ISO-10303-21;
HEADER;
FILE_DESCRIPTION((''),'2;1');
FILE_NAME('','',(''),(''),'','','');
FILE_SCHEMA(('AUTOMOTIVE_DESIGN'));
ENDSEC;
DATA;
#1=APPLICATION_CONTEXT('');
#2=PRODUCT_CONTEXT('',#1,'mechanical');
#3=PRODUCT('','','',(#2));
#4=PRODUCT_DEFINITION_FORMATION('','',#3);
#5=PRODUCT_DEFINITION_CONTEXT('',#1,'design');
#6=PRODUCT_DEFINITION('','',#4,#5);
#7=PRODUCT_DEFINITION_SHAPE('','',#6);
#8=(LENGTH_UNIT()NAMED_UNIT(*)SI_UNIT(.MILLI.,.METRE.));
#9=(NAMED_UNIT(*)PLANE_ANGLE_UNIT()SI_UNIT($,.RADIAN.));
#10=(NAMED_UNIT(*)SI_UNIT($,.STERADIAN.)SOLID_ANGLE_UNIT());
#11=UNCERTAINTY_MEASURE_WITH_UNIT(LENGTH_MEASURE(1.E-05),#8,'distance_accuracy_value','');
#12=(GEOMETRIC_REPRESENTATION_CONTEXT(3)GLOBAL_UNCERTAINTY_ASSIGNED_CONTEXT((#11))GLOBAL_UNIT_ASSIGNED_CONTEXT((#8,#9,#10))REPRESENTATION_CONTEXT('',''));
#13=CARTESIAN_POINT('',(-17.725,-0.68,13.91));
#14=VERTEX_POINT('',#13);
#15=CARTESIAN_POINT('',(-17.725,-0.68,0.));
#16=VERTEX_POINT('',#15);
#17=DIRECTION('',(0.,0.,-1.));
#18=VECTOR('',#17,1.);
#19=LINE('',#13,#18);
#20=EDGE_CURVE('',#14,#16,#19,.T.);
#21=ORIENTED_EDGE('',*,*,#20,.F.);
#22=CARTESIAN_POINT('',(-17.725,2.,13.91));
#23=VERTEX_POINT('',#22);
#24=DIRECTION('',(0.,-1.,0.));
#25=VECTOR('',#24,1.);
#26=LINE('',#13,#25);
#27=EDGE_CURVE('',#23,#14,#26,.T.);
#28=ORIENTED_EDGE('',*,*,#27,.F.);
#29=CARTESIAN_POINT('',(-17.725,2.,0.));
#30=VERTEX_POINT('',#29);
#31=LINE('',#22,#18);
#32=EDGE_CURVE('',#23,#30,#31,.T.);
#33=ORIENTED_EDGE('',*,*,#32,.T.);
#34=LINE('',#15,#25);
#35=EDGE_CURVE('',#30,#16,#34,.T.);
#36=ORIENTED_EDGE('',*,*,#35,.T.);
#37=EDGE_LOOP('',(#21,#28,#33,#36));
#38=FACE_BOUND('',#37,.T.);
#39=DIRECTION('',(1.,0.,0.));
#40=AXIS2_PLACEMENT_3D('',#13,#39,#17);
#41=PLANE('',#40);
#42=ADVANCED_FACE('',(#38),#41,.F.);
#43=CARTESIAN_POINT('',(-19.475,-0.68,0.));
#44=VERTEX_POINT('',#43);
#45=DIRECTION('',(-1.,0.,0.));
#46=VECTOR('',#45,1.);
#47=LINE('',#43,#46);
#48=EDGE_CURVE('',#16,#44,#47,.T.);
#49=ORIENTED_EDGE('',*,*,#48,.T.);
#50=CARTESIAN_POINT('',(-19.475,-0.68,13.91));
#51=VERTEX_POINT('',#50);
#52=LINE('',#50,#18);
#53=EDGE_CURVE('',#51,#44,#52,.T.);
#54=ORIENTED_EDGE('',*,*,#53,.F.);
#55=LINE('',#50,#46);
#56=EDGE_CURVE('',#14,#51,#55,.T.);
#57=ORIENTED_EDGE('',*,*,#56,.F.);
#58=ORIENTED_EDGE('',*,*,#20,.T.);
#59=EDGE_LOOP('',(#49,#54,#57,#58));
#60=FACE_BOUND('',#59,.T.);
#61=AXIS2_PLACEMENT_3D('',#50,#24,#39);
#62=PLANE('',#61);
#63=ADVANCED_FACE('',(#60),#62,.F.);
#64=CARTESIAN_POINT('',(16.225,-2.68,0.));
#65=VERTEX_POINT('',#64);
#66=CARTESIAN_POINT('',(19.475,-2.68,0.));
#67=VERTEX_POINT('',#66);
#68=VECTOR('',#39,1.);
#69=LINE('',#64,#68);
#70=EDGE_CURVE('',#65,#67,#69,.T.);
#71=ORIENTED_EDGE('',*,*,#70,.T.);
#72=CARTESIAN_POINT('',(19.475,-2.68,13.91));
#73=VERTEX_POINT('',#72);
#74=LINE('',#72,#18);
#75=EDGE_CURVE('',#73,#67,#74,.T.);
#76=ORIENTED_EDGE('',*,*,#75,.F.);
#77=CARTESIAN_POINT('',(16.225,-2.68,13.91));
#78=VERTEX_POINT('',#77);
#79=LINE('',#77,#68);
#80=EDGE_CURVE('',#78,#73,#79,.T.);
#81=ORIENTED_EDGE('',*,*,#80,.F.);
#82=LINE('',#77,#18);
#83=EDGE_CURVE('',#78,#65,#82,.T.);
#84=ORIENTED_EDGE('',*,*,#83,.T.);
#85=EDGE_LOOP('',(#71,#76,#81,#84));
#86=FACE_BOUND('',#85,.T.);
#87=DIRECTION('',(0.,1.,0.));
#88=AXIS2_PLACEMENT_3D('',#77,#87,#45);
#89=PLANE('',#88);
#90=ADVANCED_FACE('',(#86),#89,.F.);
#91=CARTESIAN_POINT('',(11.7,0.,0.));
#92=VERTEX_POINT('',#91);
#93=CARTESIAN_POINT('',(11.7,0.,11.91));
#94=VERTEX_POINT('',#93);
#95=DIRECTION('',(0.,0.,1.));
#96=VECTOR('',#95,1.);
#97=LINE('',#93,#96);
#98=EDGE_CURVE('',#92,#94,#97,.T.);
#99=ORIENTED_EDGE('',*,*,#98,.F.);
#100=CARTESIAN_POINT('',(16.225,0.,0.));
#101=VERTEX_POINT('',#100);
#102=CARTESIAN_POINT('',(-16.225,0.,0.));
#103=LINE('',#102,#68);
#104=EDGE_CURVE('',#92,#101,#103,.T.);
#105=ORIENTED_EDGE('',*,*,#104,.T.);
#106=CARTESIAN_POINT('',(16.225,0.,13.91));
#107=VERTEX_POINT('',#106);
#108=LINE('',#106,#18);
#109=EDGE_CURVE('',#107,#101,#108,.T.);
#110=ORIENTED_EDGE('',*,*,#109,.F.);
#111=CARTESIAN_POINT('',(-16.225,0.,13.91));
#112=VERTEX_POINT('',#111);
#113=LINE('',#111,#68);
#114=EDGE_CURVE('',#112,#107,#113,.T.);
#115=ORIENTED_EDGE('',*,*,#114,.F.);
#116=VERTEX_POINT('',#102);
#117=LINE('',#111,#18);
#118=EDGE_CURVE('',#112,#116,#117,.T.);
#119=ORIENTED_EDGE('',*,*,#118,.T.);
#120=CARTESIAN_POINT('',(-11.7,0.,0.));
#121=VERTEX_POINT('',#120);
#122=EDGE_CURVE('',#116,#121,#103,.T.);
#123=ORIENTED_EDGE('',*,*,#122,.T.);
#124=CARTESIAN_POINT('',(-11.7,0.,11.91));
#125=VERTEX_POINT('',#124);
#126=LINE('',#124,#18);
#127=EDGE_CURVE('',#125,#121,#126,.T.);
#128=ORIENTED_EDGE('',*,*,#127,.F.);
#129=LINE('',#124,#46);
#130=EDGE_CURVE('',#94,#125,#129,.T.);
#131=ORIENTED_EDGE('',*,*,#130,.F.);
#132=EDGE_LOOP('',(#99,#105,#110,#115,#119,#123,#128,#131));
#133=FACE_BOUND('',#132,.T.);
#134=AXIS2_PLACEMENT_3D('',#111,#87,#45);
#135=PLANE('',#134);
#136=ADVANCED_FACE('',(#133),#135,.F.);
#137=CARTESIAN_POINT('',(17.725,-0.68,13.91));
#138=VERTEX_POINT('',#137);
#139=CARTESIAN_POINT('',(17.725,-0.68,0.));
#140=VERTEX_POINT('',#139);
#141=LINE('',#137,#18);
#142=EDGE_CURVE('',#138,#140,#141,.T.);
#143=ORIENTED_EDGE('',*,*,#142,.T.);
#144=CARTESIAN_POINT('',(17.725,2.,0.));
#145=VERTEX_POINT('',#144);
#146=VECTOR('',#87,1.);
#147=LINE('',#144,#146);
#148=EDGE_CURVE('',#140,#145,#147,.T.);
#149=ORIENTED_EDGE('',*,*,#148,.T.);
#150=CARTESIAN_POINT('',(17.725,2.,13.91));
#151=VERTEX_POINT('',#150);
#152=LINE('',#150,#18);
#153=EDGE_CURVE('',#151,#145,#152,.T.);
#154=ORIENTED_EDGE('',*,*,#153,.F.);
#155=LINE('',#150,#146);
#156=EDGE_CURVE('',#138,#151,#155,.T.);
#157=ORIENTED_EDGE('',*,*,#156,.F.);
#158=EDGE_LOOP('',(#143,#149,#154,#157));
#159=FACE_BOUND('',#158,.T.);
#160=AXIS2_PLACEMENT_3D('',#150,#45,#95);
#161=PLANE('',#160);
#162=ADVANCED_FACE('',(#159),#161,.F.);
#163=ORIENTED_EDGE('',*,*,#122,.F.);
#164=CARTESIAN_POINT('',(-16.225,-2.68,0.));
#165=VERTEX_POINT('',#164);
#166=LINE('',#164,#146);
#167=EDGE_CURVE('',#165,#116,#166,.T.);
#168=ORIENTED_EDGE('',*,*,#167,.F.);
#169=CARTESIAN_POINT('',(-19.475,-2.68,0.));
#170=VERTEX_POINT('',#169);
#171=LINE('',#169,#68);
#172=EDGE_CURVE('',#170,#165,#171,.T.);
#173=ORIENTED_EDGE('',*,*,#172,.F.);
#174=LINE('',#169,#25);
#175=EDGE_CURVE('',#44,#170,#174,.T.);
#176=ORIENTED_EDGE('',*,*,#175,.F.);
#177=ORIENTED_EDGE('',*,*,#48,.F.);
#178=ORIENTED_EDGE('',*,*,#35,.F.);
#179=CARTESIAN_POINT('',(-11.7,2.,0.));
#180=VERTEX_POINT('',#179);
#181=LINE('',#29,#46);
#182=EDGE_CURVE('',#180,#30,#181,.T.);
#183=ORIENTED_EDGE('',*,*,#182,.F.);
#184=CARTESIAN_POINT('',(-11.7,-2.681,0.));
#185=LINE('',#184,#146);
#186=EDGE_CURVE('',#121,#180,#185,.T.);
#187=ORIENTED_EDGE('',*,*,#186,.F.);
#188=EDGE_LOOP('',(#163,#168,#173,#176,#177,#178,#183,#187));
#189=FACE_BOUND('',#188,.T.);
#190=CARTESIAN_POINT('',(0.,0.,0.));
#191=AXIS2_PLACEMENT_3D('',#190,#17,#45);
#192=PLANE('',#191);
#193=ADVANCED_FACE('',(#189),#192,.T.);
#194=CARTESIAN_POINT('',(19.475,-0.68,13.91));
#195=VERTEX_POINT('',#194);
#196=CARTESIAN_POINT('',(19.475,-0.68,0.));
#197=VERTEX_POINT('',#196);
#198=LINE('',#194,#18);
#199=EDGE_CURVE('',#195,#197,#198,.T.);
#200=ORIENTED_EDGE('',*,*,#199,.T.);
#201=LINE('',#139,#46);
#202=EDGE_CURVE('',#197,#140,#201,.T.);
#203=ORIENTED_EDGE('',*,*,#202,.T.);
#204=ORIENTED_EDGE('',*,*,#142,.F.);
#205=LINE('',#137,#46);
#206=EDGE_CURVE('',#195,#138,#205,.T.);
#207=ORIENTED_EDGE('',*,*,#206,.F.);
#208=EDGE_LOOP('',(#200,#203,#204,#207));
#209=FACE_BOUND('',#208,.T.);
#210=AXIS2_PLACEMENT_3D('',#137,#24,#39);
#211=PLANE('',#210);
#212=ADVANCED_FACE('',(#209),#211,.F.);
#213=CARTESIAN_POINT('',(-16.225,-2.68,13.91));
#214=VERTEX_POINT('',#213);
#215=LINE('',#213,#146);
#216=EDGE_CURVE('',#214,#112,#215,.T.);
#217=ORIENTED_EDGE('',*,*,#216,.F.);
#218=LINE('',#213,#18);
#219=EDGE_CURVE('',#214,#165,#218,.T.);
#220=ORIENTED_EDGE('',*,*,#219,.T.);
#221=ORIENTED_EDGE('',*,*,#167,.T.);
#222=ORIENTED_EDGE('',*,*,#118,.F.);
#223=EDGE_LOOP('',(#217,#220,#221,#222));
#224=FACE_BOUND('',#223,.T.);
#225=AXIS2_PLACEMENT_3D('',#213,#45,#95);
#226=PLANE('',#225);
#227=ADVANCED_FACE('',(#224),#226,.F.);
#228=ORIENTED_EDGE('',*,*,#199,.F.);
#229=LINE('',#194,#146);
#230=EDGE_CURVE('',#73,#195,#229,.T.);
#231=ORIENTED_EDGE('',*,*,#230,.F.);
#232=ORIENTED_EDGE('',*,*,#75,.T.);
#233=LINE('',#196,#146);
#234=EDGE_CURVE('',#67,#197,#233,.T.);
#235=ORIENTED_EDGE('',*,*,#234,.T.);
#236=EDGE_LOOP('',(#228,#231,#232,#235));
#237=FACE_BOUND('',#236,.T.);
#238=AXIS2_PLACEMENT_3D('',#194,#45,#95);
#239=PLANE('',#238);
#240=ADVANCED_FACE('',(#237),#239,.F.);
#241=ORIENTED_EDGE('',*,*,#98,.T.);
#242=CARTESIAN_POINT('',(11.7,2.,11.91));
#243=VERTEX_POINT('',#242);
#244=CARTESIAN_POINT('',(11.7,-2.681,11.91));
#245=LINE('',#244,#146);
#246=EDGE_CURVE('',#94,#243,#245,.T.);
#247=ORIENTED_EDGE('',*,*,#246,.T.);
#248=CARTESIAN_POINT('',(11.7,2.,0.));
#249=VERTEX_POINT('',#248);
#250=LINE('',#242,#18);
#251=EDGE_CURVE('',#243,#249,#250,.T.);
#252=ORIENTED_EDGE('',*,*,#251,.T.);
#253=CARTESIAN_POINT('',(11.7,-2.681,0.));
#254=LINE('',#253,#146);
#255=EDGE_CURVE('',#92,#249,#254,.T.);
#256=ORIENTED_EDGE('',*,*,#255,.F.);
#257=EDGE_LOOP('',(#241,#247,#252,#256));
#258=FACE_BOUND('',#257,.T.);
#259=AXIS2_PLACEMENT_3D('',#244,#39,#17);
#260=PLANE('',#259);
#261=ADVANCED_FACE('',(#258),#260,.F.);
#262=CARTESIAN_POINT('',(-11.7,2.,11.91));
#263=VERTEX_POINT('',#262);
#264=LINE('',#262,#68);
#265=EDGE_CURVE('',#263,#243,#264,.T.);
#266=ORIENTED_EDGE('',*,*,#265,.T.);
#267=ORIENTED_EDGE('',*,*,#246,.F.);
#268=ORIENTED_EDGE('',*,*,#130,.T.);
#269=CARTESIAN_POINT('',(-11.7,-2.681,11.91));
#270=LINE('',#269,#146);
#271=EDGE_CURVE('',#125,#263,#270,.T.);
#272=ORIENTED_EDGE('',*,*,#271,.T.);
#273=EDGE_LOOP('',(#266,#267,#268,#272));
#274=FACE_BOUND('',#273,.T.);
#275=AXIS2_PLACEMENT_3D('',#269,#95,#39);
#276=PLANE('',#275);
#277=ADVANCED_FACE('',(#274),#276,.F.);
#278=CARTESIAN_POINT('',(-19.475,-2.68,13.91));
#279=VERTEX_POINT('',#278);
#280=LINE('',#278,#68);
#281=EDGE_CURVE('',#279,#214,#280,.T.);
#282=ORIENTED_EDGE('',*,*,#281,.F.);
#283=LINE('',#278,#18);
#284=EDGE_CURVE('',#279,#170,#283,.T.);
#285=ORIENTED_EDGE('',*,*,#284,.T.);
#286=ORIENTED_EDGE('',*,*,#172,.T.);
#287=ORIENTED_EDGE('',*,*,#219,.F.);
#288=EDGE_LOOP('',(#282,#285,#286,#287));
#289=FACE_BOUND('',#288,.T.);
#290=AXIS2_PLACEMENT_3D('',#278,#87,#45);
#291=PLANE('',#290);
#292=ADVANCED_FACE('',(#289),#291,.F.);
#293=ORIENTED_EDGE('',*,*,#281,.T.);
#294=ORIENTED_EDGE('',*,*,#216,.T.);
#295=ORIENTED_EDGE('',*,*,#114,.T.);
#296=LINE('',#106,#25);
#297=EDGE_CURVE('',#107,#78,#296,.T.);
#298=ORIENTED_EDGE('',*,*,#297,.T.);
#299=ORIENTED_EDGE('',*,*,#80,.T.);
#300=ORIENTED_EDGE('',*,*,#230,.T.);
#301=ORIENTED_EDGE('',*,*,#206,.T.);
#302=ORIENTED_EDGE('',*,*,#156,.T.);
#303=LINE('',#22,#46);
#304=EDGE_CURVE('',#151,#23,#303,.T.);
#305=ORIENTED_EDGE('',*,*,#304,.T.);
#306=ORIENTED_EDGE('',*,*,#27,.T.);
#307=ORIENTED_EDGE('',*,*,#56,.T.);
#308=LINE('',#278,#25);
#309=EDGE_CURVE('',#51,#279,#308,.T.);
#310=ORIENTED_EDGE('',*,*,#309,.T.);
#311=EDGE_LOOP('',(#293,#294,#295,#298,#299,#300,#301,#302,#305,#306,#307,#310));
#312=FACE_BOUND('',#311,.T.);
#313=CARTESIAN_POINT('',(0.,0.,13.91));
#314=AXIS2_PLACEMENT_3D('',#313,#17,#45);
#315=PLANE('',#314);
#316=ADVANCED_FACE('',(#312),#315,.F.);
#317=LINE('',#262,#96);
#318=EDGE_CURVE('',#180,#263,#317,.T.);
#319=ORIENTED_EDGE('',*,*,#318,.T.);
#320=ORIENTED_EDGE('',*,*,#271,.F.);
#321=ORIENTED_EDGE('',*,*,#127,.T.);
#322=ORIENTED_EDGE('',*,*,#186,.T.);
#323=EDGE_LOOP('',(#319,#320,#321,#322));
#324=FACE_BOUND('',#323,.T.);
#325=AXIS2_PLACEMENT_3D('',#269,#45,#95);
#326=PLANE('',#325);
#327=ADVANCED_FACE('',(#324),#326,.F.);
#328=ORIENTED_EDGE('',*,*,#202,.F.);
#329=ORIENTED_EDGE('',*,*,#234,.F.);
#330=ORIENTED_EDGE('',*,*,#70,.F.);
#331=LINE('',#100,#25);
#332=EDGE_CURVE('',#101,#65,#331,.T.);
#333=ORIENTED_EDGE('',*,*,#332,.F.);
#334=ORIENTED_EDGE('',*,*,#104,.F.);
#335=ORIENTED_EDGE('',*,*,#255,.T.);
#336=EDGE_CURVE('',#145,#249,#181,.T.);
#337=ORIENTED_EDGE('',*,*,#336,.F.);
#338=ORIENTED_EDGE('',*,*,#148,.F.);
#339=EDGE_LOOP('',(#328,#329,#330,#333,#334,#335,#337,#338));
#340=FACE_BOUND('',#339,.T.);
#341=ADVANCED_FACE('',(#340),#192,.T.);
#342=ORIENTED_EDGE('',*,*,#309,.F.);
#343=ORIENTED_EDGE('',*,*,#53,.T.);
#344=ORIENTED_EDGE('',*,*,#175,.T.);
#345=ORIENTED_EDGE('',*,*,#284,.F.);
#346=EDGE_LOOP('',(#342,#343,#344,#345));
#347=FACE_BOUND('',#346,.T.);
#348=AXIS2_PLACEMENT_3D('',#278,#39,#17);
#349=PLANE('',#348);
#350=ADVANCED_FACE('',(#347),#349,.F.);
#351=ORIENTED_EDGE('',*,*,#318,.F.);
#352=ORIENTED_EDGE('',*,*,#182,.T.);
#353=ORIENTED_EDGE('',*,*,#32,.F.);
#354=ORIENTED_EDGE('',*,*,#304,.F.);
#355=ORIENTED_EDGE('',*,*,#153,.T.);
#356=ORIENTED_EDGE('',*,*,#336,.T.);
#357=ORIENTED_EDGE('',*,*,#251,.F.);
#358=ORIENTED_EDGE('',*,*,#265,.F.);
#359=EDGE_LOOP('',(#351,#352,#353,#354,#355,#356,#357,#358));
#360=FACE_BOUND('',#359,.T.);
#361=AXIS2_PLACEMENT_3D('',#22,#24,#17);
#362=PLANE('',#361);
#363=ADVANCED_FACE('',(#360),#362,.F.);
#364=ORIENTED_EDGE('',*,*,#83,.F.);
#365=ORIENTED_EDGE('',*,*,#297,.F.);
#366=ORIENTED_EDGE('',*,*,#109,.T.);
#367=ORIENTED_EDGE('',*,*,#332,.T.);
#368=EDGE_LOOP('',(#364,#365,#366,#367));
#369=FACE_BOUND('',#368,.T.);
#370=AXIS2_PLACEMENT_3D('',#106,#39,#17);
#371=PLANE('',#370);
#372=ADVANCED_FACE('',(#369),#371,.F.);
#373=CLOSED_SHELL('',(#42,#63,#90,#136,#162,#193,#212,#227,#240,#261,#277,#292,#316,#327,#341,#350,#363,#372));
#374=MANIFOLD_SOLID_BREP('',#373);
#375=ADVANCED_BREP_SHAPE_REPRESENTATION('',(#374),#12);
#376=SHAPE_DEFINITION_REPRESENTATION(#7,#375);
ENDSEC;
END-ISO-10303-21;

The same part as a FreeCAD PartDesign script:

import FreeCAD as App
import Part
import Sketcher
from FreeCAD import Vector
Q = App.Units.Quantity


def add_polygon(sketch, points):
    """Adds a closed chain of lines whose ends are joined by coincident constraints."""
    first, n = sketch.GeometryCount, len(points)
    for a, b in zip(points, points[1:] + points[:1]):
        sketch.addGeometry(Part.LineSegment(App.Vector(*a, 0), App.Vector(*b, 0)), False)
    for i in range(n):
        sketch.addConstraint(Sketcher.Constraint("Coincident", first + i, 2, first + (i + 1) % n, 1))

doc = App.newDocument("Part")
body = doc.addObject("PartDesign::Body", "Body")

sketch1 = body.newObject("Sketcher::SketchObject", "Sketch")
sketch1.AttachmentSupport = (doc.getObject("XY_Plane"), [""])
sketch1.MapMode = "FlatFace"
add_polygon(sketch1, [(-19.475, -2.68), (-16.225, -2.68), (-16.225, 0), (16.225, 0), (16.225, -2.68), (19.475, -2.68), (19.475, -0.68), (17.725, -0.68), (17.725, 2), (-17.725, 2), (-17.725, -0.68), (-19.475, -0.68)])
sketch1.addConstraint(Sketcher.Constraint("Horizontal", 0))
sketch1.addConstraint(Sketcher.Constraint("Vertical", 1))
sketch1.addConstraint(Sketcher.Constraint("Horizontal", 2))
sketch1.addConstraint(Sketcher.Constraint("Vertical", 3))
sketch1.addConstraint(Sketcher.Constraint("Horizontal", 4))
sketch1.addConstraint(Sketcher.Constraint("Vertical", 5))
sketch1.addConstraint(Sketcher.Constraint("Horizontal", 6))
sketch1.addConstraint(Sketcher.Constraint("Vertical", 7))
sketch1.addConstraint(Sketcher.Constraint("Horizontal", 8))
sketch1.addConstraint(Sketcher.Constraint("Vertical", 9))
sketch1.addConstraint(Sketcher.Constraint("Horizontal", 10))
sketch1.addConstraint(Sketcher.Constraint("Vertical", 11))
sketch1.addConstraint(Sketcher.Constraint("Symmetric", 1, 2, 2, 2, -1, 1))
sketch1.addConstraint(Sketcher.Constraint("Symmetric", 6, 2, 9, 2, -2))
sketch1.addConstraint(Sketcher.Constraint("Symmetric", 4, 2, 11, 2, -2))
sketch1.addConstraint(Sketcher.Constraint("Equal", 3, 7))
sketch1.addConstraint(Sketcher.Constraint("DistanceY", 5, 1, 5, 2, Q("2 mm")))
sketch1.addConstraint(Sketcher.Constraint("DistanceX", 0, 1, 0, 2, Q("3.25 mm")))
sketch1.addConstraint(Sketcher.Constraint("DistanceX", 2, 1, 2, 2, Q("32.45 mm")))
sketch1.addConstraint(Sketcher.Constraint("DistanceX", 6, 2, 6, 1, Q("1.75 mm")))
sketch1.addConstraint(Sketcher.Constraint("DistanceY", 1, 1, 1, 2, Q("2.68 mm")))
pad1 = body.newObject("PartDesign::Pad", "Pad")
pad1.Profile = sketch1
pad1.Length = 13.91

sketch2 = body.newObject("Sketcher::SketchObject", "Sketch001")
sketch2.AttachmentSupport = (doc.getObject("XZ_Plane"), [""])
sketch2.MapMode = "FlatFace"
sketch2.AttachmentOffset = App.Placement(Vector(0, 0, -2), App.Rotation())
add_polygon(sketch2, [(-11.7, 0), (-11.7, 11.91), (11.7, 11.91), (11.7, 0)])
sketch2.addConstraint(Sketcher.Constraint("Vertical", 0))
sketch2.addConstraint(Sketcher.Constraint("Horizontal", 1))
sketch2.addConstraint(Sketcher.Constraint("Vertical", 2))
sketch2.addConstraint(Sketcher.Constraint("Horizontal", 3))
sketch2.addConstraint(Sketcher.Constraint("Symmetric", 2, 2, 3, 2, -1, 1))
sketch2.addConstraint(Sketcher.Constraint("DistanceX", 1, 1, 1, 2, Q("23.4 mm")))
sketch2.addConstraint(Sketcher.Constraint("DistanceY", 0, 1, 0, 2, Q("11.91 mm")))
pocket1 = body.newObject("PartDesign::Pocket", "Pocket")
pocket1.Profile = sketch2
pocket1.Type = "UpToFirst"
pocket1.Reversed = True

doc.recompute()
